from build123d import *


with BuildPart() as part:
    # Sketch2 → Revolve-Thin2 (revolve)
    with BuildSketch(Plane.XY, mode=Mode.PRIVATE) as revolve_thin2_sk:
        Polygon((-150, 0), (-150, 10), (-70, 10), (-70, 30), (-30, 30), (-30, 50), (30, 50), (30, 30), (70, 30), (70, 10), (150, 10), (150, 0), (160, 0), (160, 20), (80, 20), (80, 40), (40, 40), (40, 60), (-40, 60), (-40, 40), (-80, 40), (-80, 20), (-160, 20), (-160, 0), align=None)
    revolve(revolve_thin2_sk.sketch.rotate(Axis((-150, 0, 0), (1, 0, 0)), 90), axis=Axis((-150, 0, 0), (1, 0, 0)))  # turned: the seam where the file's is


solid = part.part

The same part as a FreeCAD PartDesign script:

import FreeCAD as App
import Part
import Sketcher

V = App.Vector
Q = App.Units.Quantity

doc = App.newDocument("Part")
params = doc.addObject("Spreadsheet::Sheet", "Params")
for row, (alias, value) in enumerate([
    ("sketch1_width", "80 mm"),
    ("sketch1_width2", "40 mm"),
    ("sketch1_width3", "60 mm"),
    ("sketch1_height", "20 mm"),
    ("revolution_angle", "360 deg"),
], start=1):
    params.set(f"A{row}", alias)
    params.set(f"B{row}", "=" + value)
    params.setAlias(f"B{row}", alias)

body = doc.addObject("PartDesign::Body", "Body")

# Sketch on XY plane
sketch1 = body.newObject("Sketcher::SketchObject", "Sketch")
sketch1.AttachmentSupport = (doc.getObject("XY_Plane"), [""])
sketch1.MapMode = "FlatFace"
sketch1.addGeometry(Part.LineSegment(V(-150, 0, 0), V(-150, 10, 0)), False)
sketch1.addGeometry(Part.LineSegment(V(-150, 10, 0), V(-70, 10, 0)), False)
sketch1.addGeometry(Part.LineSegment(V(-70, 10, 0), V(-70, 30, 0)), False)
sketch1.addGeometry(Part.LineSegment(V(-70, 30, 0), V(-30, 30, 0)), False)
sketch1.addGeometry(Part.LineSegment(V(-30, 30, 0), V(-30, 50, 0)), False)
sketch1.addGeometry(Part.LineSegment(V(-30, 50, 0), V(30, 50, 0)), False)
sketch1.addGeometry(Part.LineSegment(V(30, 50, 0), V(30, 30, 0)), False)
sketch1.addGeometry(Part.LineSegment(V(30, 30, 0), V(70, 30, 0)), False)
sketch1.addGeometry(Part.LineSegment(V(70, 30, 0), V(70, 10, 0)), False)
sketch1.addGeometry(Part.LineSegment(V(70, 10, 0), V(150, 10, 0)), False)
sketch1.addGeometry(Part.LineSegment(V(150, 10, 0), V(150, 0, 0)), False)
sketch1.addGeometry(Part.LineSegment(V(150, 0, 0), V(160, 0, 0)), False)
sketch1.addGeometry(Part.LineSegment(V(160, 0, 0), V(160, 20, 0)), False)
sketch1.addGeometry(Part.LineSegment(V(160, 20, 0), V(80, 20, 0)), False)
sketch1.addGeometry(Part.LineSegment(V(80, 20, 0), V(80, 40, 0)), False)
sketch1.addGeometry(Part.LineSegment(V(80, 40, 0), V(40, 40, 0)), False)
sketch1.addGeometry(Part.LineSegment(V(40, 40, 0), V(40, 60, 0)), False)
sketch1.addGeometry(Part.LineSegment(V(40, 60, 0), V(-40, 60, 0)), False)
sketch1.addGeometry(Part.LineSegment(V(-40, 60, 0), V(-40, 40, 0)), False)
sketch1.addGeometry(Part.LineSegment(V(-40, 40, 0), V(-80, 40, 0)), False)
sketch1.addGeometry(Part.LineSegment(V(-80, 40, 0), V(-80, 20, 0)), False)
sketch1.addGeometry(Part.LineSegment(V(-80, 20, 0), V(-160, 20, 0)), False)
sketch1.addGeometry(Part.LineSegment(V(-160, 20, 0), V(-160, 0, 0)), False)
sketch1.addGeometry(Part.LineSegment(V(-160, 0, 0), V(-150, 0, 0)), False)
sketch1.addConstraint(Sketcher.Constraint("Coincident", 0, 2, 1, 1))
sketch1.addConstraint(Sketcher.Constraint("Coincident", 1, 2, 2, 1))
sketch1.addConstraint(Sketcher.Constraint("Coincident", 2, 2, 3, 1))
sketch1.addConstraint(Sketcher.Constraint("Coincident", 3, 2, 4, 1))
sketch1.addConstraint(Sketcher.Constraint("Coincident", 4, 2, 5, 1))
sketch1.addConstraint(Sketcher.Constraint("Coincident", 5, 2, 6, 1))
sketch1.addConstraint(Sketcher.Constraint("Coincident", 6, 2, 7, 1))
sketch1.addConstraint(Sketcher.Constraint("Coincident", 7, 2, 8, 1))
sketch1.addConstraint(Sketcher.Constraint("Coincident", 8, 2, 9, 1))
sketch1.addConstraint(Sketcher.Constraint("Coincident", 9, 2, 10, 1))
sketch1.addConstraint(Sketcher.Constraint("Coincident", 10, 2, 11, 1))
sketch1.addConstraint(Sketcher.Constraint("Coincident", 11, 2, 12, 1))
sketch1.addConstraint(Sketcher.Constraint("Coincident", 12, 2, 13, 1))
sketch1.addConstraint(Sketcher.Constraint("Coincident", 13, 2, 14, 1))
sketch1.addConstraint(Sketcher.Constraint("Coincident", 14, 2, 15, 1))
sketch1.addConstraint(Sketcher.Constraint("Coincident", 15, 2, 16, 1))
sketch1.addConstraint(Sketcher.Constraint("Coincident", 16, 2, 17, 1))
sketch1.addConstraint(Sketcher.Constraint("Coincident", 17, 2, 18, 1))
sketch1.addConstraint(Sketcher.Constraint("Coincident", 18, 2, 19, 1))
sketch1.addConstraint(Sketcher.Constraint("Coincident", 19, 2, 20, 1))
sketch1.addConstraint(Sketcher.Constraint("Coincident", 20, 2, 21, 1))
sketch1.addConstraint(Sketcher.Constraint("Coincident", 21, 2, 22, 1))
sketch1.addConstraint(Sketcher.Constraint("Coincident", 22, 2, 23, 1))
sketch1.addConstraint(Sketcher.Constraint("Coincident", 23, 2, 0, 1))
sketch1.addConstraint(Sketcher.Constraint("Vertical", 0))
sketch1.addConstraint(Sketcher.Constraint("Horizontal", 1))
sketch1.addConstraint(Sketcher.Constraint("Vertical", 2))
sketch1.addConstraint(Sketcher.Constraint("Horizontal", 3))
sketch1.addConstraint(Sketcher.Constraint("Vertical", 4))
sketch1.addConstraint(Sketcher.Constraint("Horizontal", 5))
sketch1.addConstraint(Sketcher.Constraint("Vertical", 6))
sketch1.addConstraint(Sketcher.Constraint("Horizontal", 7))
sketch1.addConstraint(Sketcher.Constraint("Vertical", 8))
sketch1.addConstraint(Sketcher.Constraint("Horizontal", 9))
sketch1.addConstraint(Sketcher.Constraint("Vertical", 10))
sketch1.addConstraint(Sketcher.Constraint("Horizontal", 11))
sketch1.addConstraint(Sketcher.Constraint("Vertical", 12))
sketch1.addConstraint(Sketcher.Constraint("Horizontal", 13))
sketch1.addConstraint(Sketcher.Constraint("Vertical", 14))
sketch1.addConstraint(Sketcher.Constraint("Horizontal", 15))
sketch1.addConstraint(Sketcher.Constraint("Vertical", 16))
sketch1.addConstraint(Sketcher.Constraint("Horizontal", 17))
sketch1.addConstraint(Sketcher.Constraint("Vertical", 18))
sketch1.addConstraint(Sketcher.Constraint("Horizontal", 19))
sketch1.addConstraint(Sketcher.Constraint("Vertical", 20))
sketch1.addConstraint(Sketcher.Constraint("Horizontal", 21))
sketch1.addConstraint(Sketcher.Constraint("Vertical", 22))
sketch1.addConstraint(Sketcher.Constraint("Horizontal", 23))
sketch1.addConstraint(Sketcher.Constraint("Symmetric", 11, 2, 22, 2, -1, 1))
sketch1.addConstraint(Sketcher.Constraint("Symmetric", 3, 2, 6, 2, -2))
sketch1.addConstraint(Sketcher.Constraint("Symmetric", 1, 2, 8, 2, -2))
sketch1.addConstraint(Sketcher.Constraint("Symmetric", 15, 2, 18, 2, -2))
sketch1.addConstraint(Sketcher.Constraint("Symmetric", 13, 2, 20, 2, -2))
sketch1.addConstraint(Sketcher.Constraint("Symmetric", 10, 2, 23, 2, -2))
sketch1.addConstraint(Sketcher.Constraint("Equal", 9, 13))
sketch1.addConstraint(Sketcher.Constraint("Equal", 7, 15))
sketch1.addConstraint(Sketcher.Constraint("Equal", 13, 17))
sketch1.addConstraint(Sketcher.Constraint("Equal", 23, 0))
sketch1.addConstraint(Sketcher.Constraint("Equal", 2, 4))
sketch1.addConstraint(Sketcher.Constraint("Equal", 8, 12))
sketch1.addConstraint(Sketcher.Constraint("Equal", 12, 14))
sketch1.addConstraint(Sketcher.Constraint("Equal", 14, 16))
sketch1.addConstraint(Sketcher.Constraint("DistanceX", 1, 1, 1, 2, Q("80 mm")))
sketch1.addConstraint(Sketcher.Constraint("DistanceX", 3, 1, 3, 2, Q("40 mm")))
sketch1.addConstraint(Sketcher.Constraint("DistanceX", 5, 1, 5, 2, Q("60 mm")))
sketch1.addConstraint(Sketcher.Constraint("DistanceY", 2, 1, 2, 2, Q("20 mm")))
sketch1.setExpression("Constraints[62]", "Params.sketch1_width")
sketch1.setExpression("Constraints[63]", "Params.sketch1_width2")
sketch1.setExpression("Constraints[64]", "Params.sketch1_width3")
sketch1.setExpression("Constraints[65]", "Params.sketch1_height")
revolution = body.newObject("PartDesign::Revolution", "Revolution")
revolution.Profile = sketch1
revolution.ReferenceAxis = (sketch1, ["H_Axis"])
revolution.setExpression("Angle", "Params.revolution_angle")

doc.recompute()
